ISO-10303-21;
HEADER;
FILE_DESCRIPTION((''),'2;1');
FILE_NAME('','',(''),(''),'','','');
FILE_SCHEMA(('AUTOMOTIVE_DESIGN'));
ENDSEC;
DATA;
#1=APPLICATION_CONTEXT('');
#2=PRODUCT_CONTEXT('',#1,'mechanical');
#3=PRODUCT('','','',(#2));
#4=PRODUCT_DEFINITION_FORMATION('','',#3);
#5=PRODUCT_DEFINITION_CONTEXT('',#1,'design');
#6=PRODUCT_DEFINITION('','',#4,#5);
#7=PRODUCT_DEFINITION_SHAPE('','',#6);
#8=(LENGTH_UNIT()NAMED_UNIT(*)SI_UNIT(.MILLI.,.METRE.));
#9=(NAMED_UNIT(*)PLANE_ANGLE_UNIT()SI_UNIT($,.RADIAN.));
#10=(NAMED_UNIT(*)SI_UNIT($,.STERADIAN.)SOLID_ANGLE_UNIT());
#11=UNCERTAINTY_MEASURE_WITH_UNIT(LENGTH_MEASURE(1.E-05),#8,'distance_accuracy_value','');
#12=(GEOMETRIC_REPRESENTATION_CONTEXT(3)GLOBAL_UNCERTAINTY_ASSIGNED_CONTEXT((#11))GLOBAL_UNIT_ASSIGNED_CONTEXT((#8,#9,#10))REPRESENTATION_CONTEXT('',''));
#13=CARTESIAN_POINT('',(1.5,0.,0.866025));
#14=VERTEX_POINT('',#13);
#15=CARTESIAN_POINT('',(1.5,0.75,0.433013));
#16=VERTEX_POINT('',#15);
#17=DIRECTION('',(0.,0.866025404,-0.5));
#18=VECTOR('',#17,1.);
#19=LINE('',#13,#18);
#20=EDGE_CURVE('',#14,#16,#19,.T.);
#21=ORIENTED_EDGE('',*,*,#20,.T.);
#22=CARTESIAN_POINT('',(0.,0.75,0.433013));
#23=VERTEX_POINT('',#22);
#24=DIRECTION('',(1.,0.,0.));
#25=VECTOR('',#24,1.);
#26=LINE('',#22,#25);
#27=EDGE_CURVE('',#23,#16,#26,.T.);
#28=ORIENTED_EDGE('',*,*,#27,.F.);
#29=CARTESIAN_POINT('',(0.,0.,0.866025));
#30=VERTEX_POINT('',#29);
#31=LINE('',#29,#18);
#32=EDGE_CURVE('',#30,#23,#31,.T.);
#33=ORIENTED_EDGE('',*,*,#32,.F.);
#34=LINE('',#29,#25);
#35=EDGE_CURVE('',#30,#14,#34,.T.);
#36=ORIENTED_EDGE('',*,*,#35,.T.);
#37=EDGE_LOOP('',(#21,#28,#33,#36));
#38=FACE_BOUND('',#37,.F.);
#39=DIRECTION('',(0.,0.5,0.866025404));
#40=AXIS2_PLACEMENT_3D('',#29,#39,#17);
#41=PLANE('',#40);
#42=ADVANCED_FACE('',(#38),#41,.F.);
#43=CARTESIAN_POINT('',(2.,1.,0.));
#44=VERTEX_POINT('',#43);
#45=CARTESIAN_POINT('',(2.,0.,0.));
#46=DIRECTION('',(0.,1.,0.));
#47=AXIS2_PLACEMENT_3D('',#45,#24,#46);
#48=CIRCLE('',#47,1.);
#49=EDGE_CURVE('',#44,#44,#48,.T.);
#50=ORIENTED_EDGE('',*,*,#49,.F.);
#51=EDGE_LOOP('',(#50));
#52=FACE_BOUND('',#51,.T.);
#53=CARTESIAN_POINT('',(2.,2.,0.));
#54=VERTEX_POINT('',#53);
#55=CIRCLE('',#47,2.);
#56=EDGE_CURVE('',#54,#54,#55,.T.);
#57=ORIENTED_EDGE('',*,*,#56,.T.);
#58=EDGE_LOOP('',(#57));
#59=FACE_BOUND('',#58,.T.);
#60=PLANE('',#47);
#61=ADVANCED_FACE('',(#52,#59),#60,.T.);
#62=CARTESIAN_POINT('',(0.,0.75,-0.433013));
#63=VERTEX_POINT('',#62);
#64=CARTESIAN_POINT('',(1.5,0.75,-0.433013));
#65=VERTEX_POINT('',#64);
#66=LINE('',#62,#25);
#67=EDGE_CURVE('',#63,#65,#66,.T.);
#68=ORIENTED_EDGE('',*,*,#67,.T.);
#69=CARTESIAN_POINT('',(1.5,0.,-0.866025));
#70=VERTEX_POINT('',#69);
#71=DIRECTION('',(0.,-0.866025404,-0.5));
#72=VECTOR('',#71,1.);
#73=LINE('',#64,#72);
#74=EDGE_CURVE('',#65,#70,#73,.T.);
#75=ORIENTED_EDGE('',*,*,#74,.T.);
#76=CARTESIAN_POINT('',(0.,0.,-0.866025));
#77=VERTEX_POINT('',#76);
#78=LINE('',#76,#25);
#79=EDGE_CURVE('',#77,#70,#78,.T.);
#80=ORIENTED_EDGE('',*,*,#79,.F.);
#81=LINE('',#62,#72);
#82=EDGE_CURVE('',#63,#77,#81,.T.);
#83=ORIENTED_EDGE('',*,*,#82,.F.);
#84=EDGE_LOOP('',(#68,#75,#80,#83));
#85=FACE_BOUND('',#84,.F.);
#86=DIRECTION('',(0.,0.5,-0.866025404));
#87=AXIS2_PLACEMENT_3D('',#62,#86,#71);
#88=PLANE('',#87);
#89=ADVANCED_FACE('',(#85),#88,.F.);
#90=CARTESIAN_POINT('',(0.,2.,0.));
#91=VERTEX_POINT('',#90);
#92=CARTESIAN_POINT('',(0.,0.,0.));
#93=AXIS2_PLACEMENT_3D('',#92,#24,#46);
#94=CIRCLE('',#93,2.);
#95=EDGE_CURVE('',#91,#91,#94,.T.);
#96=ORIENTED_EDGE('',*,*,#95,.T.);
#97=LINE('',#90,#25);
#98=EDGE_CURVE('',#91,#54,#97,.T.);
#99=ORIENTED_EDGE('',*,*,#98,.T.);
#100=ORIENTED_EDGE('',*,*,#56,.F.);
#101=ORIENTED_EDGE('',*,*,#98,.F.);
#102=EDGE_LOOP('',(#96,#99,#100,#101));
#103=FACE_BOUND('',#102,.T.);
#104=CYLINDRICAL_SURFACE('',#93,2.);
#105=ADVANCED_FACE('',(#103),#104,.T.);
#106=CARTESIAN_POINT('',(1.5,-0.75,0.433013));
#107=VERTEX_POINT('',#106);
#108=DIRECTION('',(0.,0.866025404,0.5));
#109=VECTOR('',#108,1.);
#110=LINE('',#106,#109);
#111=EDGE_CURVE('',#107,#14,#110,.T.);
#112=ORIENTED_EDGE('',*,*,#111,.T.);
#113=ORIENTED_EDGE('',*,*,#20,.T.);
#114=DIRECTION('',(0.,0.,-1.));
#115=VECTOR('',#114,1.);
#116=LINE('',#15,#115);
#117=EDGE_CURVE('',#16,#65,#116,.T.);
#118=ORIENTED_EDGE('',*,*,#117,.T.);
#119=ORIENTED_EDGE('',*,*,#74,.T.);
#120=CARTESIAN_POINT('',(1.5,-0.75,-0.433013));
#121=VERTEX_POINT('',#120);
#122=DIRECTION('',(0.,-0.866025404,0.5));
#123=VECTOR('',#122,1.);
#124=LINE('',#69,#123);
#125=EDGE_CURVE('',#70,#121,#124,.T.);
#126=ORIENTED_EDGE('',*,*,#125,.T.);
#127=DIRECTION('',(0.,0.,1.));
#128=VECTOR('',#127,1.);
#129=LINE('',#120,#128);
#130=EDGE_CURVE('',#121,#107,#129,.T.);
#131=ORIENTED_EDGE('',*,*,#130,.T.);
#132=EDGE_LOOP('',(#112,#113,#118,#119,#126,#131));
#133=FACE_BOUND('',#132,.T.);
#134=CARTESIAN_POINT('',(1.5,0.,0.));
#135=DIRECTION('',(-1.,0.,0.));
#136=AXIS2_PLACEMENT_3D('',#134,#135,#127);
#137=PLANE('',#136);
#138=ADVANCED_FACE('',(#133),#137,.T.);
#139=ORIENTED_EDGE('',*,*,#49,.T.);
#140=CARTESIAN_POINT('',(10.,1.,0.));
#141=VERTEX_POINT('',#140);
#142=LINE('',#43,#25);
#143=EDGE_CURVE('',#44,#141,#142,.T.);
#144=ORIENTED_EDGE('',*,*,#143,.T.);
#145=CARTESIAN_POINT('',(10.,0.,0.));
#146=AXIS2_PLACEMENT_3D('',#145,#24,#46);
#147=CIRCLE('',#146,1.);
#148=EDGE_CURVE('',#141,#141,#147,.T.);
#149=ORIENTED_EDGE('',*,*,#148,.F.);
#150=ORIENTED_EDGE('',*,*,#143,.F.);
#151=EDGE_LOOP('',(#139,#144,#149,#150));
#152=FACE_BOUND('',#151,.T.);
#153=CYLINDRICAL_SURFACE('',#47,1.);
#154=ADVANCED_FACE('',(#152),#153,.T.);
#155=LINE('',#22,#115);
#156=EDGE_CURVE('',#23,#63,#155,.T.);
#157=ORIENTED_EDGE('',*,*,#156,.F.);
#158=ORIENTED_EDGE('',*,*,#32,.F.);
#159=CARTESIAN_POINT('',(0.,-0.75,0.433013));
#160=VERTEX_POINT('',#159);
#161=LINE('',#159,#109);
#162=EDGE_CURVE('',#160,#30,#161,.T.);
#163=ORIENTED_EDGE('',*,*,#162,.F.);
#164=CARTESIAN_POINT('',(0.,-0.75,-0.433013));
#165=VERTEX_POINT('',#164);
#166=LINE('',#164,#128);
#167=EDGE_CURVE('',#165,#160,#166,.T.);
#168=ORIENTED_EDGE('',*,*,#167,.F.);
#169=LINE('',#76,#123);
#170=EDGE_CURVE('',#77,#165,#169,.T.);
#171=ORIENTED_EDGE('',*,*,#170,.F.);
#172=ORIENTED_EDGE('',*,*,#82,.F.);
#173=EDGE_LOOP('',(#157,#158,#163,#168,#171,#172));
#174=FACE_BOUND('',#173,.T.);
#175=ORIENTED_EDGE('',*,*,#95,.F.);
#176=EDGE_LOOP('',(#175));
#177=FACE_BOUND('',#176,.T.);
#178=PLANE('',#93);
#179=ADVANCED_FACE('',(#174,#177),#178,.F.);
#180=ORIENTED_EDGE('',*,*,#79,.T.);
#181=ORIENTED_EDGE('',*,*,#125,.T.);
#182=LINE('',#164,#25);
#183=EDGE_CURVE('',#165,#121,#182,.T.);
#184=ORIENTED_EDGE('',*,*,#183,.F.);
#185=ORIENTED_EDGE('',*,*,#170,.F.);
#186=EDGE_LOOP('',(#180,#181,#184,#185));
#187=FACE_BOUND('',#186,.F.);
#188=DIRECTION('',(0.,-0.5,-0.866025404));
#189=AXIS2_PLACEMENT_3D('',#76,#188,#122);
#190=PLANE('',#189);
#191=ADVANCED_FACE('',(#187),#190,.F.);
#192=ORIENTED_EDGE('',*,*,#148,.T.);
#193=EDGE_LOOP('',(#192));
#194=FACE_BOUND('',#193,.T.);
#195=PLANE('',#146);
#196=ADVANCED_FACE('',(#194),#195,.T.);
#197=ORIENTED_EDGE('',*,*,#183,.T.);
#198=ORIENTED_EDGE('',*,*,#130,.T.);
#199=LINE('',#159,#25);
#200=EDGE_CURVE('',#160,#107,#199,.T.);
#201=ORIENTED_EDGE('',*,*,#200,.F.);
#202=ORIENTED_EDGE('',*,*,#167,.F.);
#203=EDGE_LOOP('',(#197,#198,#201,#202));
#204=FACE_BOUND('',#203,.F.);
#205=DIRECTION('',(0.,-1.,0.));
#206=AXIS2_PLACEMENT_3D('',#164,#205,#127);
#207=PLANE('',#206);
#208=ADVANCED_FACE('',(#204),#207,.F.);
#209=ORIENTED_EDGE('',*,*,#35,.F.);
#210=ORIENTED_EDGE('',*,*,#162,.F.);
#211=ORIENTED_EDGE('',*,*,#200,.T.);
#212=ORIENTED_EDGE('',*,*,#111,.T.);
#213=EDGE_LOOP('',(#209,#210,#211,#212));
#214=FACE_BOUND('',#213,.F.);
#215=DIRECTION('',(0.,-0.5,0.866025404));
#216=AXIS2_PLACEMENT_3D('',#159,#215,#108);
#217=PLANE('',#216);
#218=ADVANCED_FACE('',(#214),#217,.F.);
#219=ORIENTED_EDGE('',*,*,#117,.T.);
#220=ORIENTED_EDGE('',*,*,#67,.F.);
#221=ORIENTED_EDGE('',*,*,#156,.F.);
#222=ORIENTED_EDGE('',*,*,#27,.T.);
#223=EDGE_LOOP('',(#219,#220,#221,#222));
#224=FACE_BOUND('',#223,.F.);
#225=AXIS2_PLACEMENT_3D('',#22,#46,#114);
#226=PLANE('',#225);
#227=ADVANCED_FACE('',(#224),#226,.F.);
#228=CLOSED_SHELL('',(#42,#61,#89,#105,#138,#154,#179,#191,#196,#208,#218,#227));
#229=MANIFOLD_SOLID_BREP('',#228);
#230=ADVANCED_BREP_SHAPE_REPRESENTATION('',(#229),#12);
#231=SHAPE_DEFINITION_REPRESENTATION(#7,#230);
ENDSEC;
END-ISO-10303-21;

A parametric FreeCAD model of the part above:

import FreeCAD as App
import Part
import Sketcher

V = App.Vector
Q = App.Units.Quantity


def add_polygon(sketch, points):
    """Adds a closed chain of lines whose ends are joined by coincident constraints."""
    first, n = sketch.GeometryCount, len(points)
    for a, b in zip(points, points[1:] + points[:1]):
        sketch.addGeometry(Part.LineSegment(App.Vector(*a, 0), App.Vector(*b, 0)), False)
    for i in range(n):
        sketch.addConstraint(Sketcher.Constraint("Coincident", first + i, 2, first + (i + 1) % n, 1))

doc = App.newDocument("Part")
body = doc.addObject("PartDesign::Body", "Body")

sketch1 = doc.addObject("Sketcher::SketchObject", "Sketch")
body.addObject(sketch1)
sketch1.AttachmentSupport = (doc.XY_Plane, [""])
sketch1.MapMode = "FlatFace"
add_polygon(sketch1, [(0, 2), (0, 0), (10, 0), (10, 1), (2, 1), (2, 2)])
sketch1.addConstraint([
    Sketcher.Constraint("Vertical", 0),
    Sketcher.Constraint("Horizontal", 1),
    Sketcher.Constraint("Vertical", 2),
    Sketcher.Constraint("Horizontal", 3),
    Sketcher.Constraint("Vertical", 4),
    Sketcher.Constraint("Horizontal", 5),
    Sketcher.Constraint("Coincident", 0, 2, -1, 1),
    Sketcher.Constraint("Equal", 5, 0),
    Sketcher.Constraint("Equal", 2, 4),
    Sketcher.Constraint("DistanceX", 1, 1, 1, 2, 10.0),
    Sketcher.Constraint("DistanceX", 3, 2, 3, 1, 8.0),
])
revolution = doc.addObject("PartDesign::Revolution", "Revolution")
body.addObject(revolution)
revolution.Profile = sketch1
revolution.ReferenceAxis = (sketch1, ["H_Axis"])
revolution.Angle = 360

sketch2 = doc.addObject("Sketcher::SketchObject", "Sketch001")
body.addObject(sketch2)
sketch2.AttachmentSupport = (doc.YZ_Plane, [""])
sketch2.MapMode = "FlatFace"
add_polygon(sketch2, [(0, 0.9), (0.8, 0.4), (0.8, -0.4), (0, -0.9), (-0.8, -0.4), (-0.8, 0.4)])
sketch2.addConstraint([
    Sketcher.Constraint("Vertical", 1),
    Sketcher.Constraint("Vertical", 4),
    Sketcher.Constraint("Symmetric", 0, 2, 3, 2, -1, 1),
    Sketcher.Constraint("Symmetric", 2, 2, 5, 2, -1, 1),
    Sketcher.Constraint("PointOnObject", 2, 2, -2),
    Sketcher.Constraint("Parallel", 2, 5),
    Sketcher.Constraint("Horizontal", 1, 2, 3, 2),
    Sketcher.Constraint("Angle", 0, Q("-30 deg")),
    Sketcher.Constraint("DistanceX", 3, 2, 1, 2, 1.5),
    Sketcher.Constraint("DistanceY", 1, 2, 1, 1, 0.866025),
])
pocket1 = doc.addObject("PartDesign::Pocket", "Pocket")
body.addObject(pocket1)
pocket1.Profile = sketch2
pocket1.Length = 1.5
pocket1.Reversed = True

doc.recompute()
